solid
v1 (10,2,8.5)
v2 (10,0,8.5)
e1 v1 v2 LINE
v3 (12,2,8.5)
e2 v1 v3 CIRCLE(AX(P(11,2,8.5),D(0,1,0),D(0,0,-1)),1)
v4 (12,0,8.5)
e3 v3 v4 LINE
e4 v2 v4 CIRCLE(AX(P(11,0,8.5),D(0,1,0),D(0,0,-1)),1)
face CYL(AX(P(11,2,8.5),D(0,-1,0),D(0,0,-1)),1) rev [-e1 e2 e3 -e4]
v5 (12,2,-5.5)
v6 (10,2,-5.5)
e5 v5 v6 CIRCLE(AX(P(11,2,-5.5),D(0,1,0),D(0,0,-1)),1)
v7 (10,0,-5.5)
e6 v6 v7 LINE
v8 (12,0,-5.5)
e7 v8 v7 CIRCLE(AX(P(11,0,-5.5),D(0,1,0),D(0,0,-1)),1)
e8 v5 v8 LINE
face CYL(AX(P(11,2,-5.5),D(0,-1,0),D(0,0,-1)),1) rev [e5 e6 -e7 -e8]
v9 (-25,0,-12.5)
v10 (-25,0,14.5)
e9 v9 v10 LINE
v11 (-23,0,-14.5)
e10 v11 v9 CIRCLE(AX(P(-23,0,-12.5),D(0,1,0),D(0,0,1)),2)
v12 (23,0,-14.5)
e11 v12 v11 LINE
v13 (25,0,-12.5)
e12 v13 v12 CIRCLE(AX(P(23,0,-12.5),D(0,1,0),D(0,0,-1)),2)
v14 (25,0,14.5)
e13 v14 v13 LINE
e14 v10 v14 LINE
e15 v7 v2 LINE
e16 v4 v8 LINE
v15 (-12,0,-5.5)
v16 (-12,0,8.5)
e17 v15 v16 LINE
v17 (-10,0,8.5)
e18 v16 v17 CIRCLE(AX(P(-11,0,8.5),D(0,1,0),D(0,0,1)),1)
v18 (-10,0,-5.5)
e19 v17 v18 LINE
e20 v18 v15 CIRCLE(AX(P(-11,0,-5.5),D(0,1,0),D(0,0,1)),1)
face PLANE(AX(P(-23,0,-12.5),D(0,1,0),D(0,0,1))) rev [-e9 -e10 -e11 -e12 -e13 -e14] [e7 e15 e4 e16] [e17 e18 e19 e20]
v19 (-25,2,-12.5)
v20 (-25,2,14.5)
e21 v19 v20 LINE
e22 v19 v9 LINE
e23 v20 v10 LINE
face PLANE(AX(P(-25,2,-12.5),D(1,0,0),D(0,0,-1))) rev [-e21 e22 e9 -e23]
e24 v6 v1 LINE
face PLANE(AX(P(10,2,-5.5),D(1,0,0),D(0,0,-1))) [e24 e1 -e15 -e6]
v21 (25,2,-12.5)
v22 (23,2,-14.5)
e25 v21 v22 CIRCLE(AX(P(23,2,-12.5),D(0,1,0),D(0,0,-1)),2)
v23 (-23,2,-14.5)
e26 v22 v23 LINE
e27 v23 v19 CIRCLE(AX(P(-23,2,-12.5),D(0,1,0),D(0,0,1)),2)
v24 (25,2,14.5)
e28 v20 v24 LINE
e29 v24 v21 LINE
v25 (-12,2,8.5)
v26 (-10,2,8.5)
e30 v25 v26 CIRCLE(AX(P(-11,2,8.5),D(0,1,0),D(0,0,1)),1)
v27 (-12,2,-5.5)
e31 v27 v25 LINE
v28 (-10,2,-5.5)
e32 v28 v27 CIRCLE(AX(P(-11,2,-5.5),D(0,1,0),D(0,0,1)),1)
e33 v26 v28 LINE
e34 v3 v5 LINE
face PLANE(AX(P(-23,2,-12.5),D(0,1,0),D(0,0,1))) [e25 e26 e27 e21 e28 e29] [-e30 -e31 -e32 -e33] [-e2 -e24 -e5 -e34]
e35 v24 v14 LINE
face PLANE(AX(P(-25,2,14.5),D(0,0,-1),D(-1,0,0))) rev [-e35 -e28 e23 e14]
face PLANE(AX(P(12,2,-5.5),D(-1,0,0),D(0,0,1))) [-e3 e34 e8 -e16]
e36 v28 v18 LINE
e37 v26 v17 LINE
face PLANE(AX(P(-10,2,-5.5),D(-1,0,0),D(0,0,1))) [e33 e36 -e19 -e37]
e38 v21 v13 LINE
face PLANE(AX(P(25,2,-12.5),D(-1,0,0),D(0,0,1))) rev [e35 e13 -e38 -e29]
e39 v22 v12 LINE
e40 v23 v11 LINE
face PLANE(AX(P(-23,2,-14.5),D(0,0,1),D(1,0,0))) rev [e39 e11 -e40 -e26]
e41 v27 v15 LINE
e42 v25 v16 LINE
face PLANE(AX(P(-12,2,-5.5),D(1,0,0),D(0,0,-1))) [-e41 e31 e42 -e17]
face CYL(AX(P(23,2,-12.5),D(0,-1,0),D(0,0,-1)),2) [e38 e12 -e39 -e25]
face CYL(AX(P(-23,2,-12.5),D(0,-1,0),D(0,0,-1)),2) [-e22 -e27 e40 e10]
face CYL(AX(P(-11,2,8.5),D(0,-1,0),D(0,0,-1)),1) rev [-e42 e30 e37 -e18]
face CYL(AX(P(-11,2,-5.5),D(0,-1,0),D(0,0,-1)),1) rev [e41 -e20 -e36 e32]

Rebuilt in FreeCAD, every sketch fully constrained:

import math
import FreeCAD as App
import Part
import Sketcher
from FreeCAD import Vector

doc = App.newDocument("Part")
body = doc.addObject("PartDesign::Body", "Body")

sketch1 = body.newObject("Sketcher::SketchObject", "Sketch")
sketch1.AttachmentSupport = (doc.getObject("XZ_Plane"), [""])
sketch1.MapMode = "FlatFace"
sketch1.addGeometry([
    Part.LineSegment(Vector(23, -14.5, 0), Vector(-23, -14.5, 0)),
    Part.ArcOfCircle(Part.Circle(Vector(-23, -12.5, 0), Vector(0, 0, 1), 2), math.radians(-180), math.radians(-90)),
    Part.LineSegment(Vector(-25, -12.5, 0), Vector(-25, 14.5, 0)),
    Part.LineSegment(Vector(-25, 14.5, 0), Vector(25, 14.5, 0)),
    Part.LineSegment(Vector(25, 14.5, 0), Vector(25, -12.5, 0)),
    Part.ArcOfCircle(Part.Circle(Vector(23, -12.5, 0), Vector(0, 0, 1), 2), math.radians(-90), math.radians(0)),
    Part.ArcOfCircle(Part.Circle(Vector(11, -5.5, 0), Vector(0, 0, 1), 1), math.radians(180), math.radians(360)),
    Part.LineSegment(Vector(12, -5.5, 0), Vector(12, 8.5, 0)),
    Part.ArcOfCircle(Part.Circle(Vector(11, 8.5, 0), Vector(0, 0, 1), 1), math.radians(0), math.radians(180)),
    Part.LineSegment(Vector(10, 8.5, 0), Vector(10, -5.5, 0)),
    Part.LineSegment(Vector(-10, -5.5, 0), Vector(-10, 8.5, 0)),
    Part.ArcOfCircle(Part.Circle(Vector(-11, 8.5, 0), Vector(0, 0, 1), 1), math.radians(0), math.radians(180)),
    Part.LineSegment(Vector(-12, 8.5, 0), Vector(-12, -5.5, 0)),
    Part.ArcOfCircle(Part.Circle(Vector(-11, -5.5, 0), Vector(0, 0, 1), 1), math.radians(180), math.radians(360)),
], False)
sketch1.addConstraint([
    Sketcher.Constraint("Tangent", 0, 2, 1, 2),
    Sketcher.Constraint("Tangent", 1, 1, 2, 1),
    Sketcher.Constraint("Coincident", 2, 2, 3, 1),
    Sketcher.Constraint("Coincident", 3, 2, 4, 1),
    Sketcher.Constraint("Tangent", 4, 2, 5, 2),
    Sketcher.Constraint("Tangent", 5, 1, 0, 1),
    Sketcher.Constraint("Tangent", 6, 2, 7, 1),
    Sketcher.Constraint("Tangent", 7, 2, 8, 1),
    Sketcher.Constraint("Tangent", 8, 2, 9, 1),
    Sketcher.Constraint("Tangent", 9, 2, 6, 1),
    Sketcher.Constraint("Tangent", 10, 2, 11, 1),
    Sketcher.Constraint("Tangent", 11, 2, 12, 1),
    Sketcher.Constraint("Tangent", 12, 2, 13, 1),
    Sketcher.Constraint("Tangent", 13, 2, 10, 1),
    Sketcher.Constraint("Horizontal", 0),
    Sketcher.Constraint("Vertical", 2),
    Sketcher.Constraint("Horizontal", 3),
    Sketcher.Constraint("Vertical", 4),
    Sketcher.Constraint("Vertical", 7),
    Sketcher.Constraint("Vertical", 9),
    Sketcher.Constraint("Vertical", 10),
    Sketcher.Constraint("Vertical", 12),
    Sketcher.Constraint("Equal", 1, 5),
    Sketcher.Constraint("Equal", 8, 11),
    Sketcher.Constraint("Symmetric", 8, 3, 11, 3, -2),
    Sketcher.Constraint("Horizontal", 6, 3, 13, 3),
    Sketcher.Constraint("Radius", 1, 2.0),
    Sketcher.Constraint("Radius", 6, 1.0),
    Sketcher.Constraint("DistanceX", 0, 2, 0, 1, 46.0),
    Sketcher.Constraint("DistanceY", 2, 1, 2, 2, 27.0),
    Sketcher.Constraint("DistanceY", 7, 1, 7, 2, 14.0),
    Sketcher.Constraint("DistanceX", 1, 3, -1, 1, 23.0),
    Sketcher.Constraint("DistanceX", -1, 1, 6, 3, 11.0),
    Sketcher.Constraint("DistanceY", 5, 3, 6, 3, 7.0),
    Sketcher.Constraint("DistanceY", 1, 3, -1, 1, 12.5),
])
pad1 = body.newObject("PartDesign::Pad", "Pad")
pad1.Profile = sketch1
pad1.Length = 2
pad1.Reversed = True

doc.recompute()
